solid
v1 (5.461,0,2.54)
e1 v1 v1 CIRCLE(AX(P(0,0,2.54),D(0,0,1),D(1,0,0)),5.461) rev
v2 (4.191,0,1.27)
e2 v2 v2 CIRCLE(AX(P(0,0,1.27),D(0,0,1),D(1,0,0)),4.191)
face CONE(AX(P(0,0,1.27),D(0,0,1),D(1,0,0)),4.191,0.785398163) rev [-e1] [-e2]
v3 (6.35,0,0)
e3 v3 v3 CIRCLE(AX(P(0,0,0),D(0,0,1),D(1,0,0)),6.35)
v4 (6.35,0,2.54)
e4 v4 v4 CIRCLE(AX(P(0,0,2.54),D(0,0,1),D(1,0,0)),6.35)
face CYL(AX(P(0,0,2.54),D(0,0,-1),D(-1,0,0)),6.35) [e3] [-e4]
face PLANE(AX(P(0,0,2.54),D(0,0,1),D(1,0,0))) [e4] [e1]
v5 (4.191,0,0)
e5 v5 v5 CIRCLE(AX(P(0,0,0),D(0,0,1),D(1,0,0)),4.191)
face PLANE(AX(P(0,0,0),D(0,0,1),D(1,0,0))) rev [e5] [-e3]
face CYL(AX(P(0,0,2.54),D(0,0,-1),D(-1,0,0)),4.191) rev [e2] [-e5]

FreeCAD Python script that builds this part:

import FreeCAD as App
import Part
import Sketcher
from FreeCAD import Vector
Q = App.Units.Quantity


def edges_at(feature, points):
    """Names of the edges that pass closest to the given points."""
    edges = feature.Shape.Edges
    near = lambda p: min(range(len(edges)), key=lambda i: edges[i].distToShape(Part.Vertex(*p))[0])
    return sorted({f"Edge{near(p) + 1}" for p in points})

doc = App.newDocument("Part")
body = doc.addObject("PartDesign::Body", "Body")

# Sketch on XY plane
sketch1 = body.newObject("Sketcher::SketchObject", "Sketch")
sketch1.AttachmentSupport = (doc.getObject("XY_Plane"), [""])
sketch1.MapMode = "FlatFace"
sketch1.addGeometry(Part.Circle(Vector(0, 0, 0), Vector(0, 0, 1), 6.35), False)
sketch1.addGeometry(Part.Circle(Vector(0, 0, 0), Vector(0, 0, 1), 4.191), False)
sketch1.addConstraint(Sketcher.Constraint("Coincident", 0, 3, -1, 1))
sketch1.addConstraint(Sketcher.Constraint("Coincident", 1, 3, -1, 1))
sketch1.addConstraint(Sketcher.Constraint("Diameter", 0, Q("0.5 in")))
sketch1.addConstraint(Sketcher.Constraint("Diameter", 1, Q("0.33 in")))
pad1 = body.newObject("PartDesign::Pad", "Pad")
pad1.Profile = sketch1
pad1.Length = Q("0.1 in")
doc.recompute()

chamfer = body.newObject("PartDesign::Chamfer", "Chamfer")
chamfer.Base = (pad1, edges_at(pad1, [(-4.191, 0, 2.54)]))
chamfer.Size = Q("0.05 in")

doc.recompute()
